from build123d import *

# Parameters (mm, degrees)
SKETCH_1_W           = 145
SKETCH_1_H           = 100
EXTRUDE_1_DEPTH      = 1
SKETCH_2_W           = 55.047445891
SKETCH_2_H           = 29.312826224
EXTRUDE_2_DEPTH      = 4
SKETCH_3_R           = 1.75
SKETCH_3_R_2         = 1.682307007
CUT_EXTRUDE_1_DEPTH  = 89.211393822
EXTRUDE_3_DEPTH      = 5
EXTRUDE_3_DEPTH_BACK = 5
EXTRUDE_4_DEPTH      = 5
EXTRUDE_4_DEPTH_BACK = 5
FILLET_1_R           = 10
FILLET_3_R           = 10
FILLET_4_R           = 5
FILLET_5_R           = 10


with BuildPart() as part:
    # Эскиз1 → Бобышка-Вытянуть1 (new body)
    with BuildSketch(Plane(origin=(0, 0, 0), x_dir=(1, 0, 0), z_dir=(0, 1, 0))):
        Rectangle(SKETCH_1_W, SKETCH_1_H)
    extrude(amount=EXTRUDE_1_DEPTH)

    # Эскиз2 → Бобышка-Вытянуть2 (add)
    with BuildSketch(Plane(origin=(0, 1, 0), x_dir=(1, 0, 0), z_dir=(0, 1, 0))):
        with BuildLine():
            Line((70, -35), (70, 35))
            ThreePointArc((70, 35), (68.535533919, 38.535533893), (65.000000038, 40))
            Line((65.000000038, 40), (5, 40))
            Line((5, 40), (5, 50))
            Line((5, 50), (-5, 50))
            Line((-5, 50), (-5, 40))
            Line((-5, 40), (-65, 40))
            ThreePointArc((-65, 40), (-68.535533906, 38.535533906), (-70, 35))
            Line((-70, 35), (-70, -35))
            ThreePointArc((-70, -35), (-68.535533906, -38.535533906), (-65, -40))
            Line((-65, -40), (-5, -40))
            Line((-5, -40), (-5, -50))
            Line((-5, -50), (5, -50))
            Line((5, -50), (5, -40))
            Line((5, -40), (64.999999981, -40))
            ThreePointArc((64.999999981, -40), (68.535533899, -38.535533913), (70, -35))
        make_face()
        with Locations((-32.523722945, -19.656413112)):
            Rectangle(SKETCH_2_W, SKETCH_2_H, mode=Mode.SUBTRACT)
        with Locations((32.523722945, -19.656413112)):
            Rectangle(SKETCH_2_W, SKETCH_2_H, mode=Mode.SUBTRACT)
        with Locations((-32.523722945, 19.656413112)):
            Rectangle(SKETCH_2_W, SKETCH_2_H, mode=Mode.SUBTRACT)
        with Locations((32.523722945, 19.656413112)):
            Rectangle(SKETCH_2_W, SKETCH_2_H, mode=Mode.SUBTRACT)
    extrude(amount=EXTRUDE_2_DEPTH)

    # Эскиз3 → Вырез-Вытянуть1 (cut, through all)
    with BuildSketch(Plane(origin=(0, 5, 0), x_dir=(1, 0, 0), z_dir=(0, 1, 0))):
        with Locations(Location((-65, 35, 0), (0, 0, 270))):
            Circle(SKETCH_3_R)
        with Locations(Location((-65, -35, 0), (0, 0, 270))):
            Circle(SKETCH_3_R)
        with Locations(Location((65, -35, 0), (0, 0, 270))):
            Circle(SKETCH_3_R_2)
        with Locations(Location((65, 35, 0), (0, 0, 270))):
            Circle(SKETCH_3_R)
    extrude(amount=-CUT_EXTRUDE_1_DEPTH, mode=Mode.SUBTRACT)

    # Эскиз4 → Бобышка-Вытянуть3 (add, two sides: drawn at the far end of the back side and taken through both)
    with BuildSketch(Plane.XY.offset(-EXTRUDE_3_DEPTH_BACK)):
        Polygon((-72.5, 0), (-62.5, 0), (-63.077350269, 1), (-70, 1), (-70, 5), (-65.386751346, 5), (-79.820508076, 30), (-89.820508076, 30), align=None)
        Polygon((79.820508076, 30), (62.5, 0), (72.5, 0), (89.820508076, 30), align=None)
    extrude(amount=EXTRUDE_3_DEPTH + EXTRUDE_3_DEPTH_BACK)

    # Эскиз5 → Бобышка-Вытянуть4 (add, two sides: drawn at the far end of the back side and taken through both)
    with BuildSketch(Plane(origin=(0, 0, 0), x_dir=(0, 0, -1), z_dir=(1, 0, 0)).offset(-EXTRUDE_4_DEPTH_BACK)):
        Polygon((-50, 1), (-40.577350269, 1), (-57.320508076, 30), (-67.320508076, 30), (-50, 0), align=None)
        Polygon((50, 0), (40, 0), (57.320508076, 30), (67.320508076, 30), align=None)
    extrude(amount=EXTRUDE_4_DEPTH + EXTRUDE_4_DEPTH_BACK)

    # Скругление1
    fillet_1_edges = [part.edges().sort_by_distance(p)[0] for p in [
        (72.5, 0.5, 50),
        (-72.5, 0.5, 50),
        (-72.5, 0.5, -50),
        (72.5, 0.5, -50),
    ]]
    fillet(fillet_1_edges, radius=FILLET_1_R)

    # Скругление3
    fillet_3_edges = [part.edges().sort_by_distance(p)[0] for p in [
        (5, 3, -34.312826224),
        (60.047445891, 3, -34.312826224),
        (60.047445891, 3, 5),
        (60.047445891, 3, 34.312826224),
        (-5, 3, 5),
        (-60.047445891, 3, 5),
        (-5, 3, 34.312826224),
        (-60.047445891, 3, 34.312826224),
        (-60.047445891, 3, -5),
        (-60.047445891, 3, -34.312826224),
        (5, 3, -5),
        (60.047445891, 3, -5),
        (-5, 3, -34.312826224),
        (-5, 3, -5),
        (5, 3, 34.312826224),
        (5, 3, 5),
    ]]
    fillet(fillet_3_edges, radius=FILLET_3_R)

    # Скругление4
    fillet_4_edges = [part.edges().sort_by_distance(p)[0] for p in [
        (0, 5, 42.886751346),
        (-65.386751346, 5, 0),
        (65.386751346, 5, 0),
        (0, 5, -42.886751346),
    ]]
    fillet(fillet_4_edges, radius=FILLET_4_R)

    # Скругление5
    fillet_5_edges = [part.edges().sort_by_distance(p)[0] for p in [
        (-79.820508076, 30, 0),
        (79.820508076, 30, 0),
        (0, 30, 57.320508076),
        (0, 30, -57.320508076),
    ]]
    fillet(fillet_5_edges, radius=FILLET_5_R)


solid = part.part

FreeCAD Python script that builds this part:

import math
import FreeCAD as App
import Part
import Sketcher
from FreeCAD import Vector
Q = App.Units.Quantity


def edges_at(feature, points):
    """Names of the edges that pass closest to the given points."""
    edges = feature.Shape.Edges
    near = lambda p: min(range(len(edges)), key=lambda i: edges[i].distToShape(Part.Vertex(*p))[0])
    return sorted({f"Edge{near(p) + 1}" for p in points})

doc = App.newDocument("Part")
body = doc.addObject("PartDesign::Body", "Body")

sketch1 = doc.addObject("Sketcher::SketchObject", "Sketch")
body.addObject(sketch1)
sketch1.AttachmentSupport = (doc.XZ_Plane, [""])
sketch1.MapMode = "FlatFace"
sketch1.addGeometry(Part.LineSegment(Vector(-72.5, -50, 0), Vector(-72.5, 50, 0)), False)
sketch1.addGeometry(Part.LineSegment(Vector(-72.5, 50, 0), Vector(72.5, 50, 0)), False)
sketch1.addGeometry(Part.LineSegment(Vector(72.5, 50, 0), Vector(72.5, -50, 0)), False)
sketch1.addGeometry(Part.LineSegment(Vector(72.5, -50, 0), Vector(-72.5, -50, 0)), False)
sketch1.addConstraint(Sketcher.Constraint("Coincident", 0, 2, 1, 1))
sketch1.addConstraint(Sketcher.Constraint("Coincident", 1, 2, 2, 1))
sketch1.addConstraint(Sketcher.Constraint("Coincident", 2, 2, 3, 1))
sketch1.addConstraint(Sketcher.Constraint("Coincident", 3, 2, 0, 1))
sketch1.addConstraint(Sketcher.Constraint("Vertical", 0))
sketch1.addConstraint(Sketcher.Constraint("Horizontal", 1))
sketch1.addConstraint(Sketcher.Constraint("Vertical", 2))
sketch1.addConstraint(Sketcher.Constraint("Horizontal", 3))
sketch1.addConstraint(Sketcher.Constraint("Symmetric", 0, 2, 2, 2, -1, 1))
sketch1.addConstraint(Sketcher.Constraint("DistanceX", 1, 1, 1, 2, Q("145 mm")))
sketch1.addConstraint(Sketcher.Constraint("DistanceY", 0, 1, 0, 2, Q("100 mm")))
pad1 = doc.addObject("PartDesign::Pad", "Pad")
body.addObject(pad1)
pad1.Profile = sketch1
pad1.Length = 1
pad1.Reversed = True

sketch2 = doc.addObject("Sketcher::SketchObject", "Sketch001")
body.addObject(sketch2)
sketch2.AttachmentSupport = (doc.XZ_Plane, [""])
sketch2.MapMode = "FlatFace"
sketch2.AttachmentOffset = App.Placement(Vector(0, 0, -1), App.Rotation())
sketch2.addGeometry(Part.LineSegment(Vector(70, 35, 0), Vector(70, -35, 0)), False)
sketch2.addGeometry(Part.ArcOfCircle(Part.Circle(Vector(65, -35, 0), Vector(0, 0, 1), 5), math.radians(-90), math.radians(0)), False)
sketch2.addGeometry(Part.LineSegment(Vector(65, -40, 0), Vector(5, -40, 0)), False)
sketch2.addGeometry(Part.LineSegment(Vector(5, -40, 0), Vector(5, -50, 0)), False)
sketch2.addGeometry(Part.LineSegment(Vector(5, -50, 0), Vector(-5, -50, 0)), False)
sketch2.addGeometry(Part.LineSegment(Vector(-5, -50, 0), Vector(-5, -40, 0)), False)
sketch2.addGeometry(Part.LineSegment(Vector(-5, -40, 0), Vector(-65, -40, 0)), False)
sketch2.addGeometry(Part.ArcOfCircle(Part.Circle(Vector(-65, -35, 0), Vector(0, 0, 1), 5), math.radians(180), math.radians(270)), False)
sketch2.addGeometry(Part.LineSegment(Vector(-70, -35, 0), Vector(-70, 35, 0)), False)
sketch2.addGeometry(Part.ArcOfCircle(Part.Circle(Vector(-65, 35, 0), Vector(0, 0, 1), 5), math.radians(90), math.radians(180)), False)
sketch2.addGeometry(Part.LineSegment(Vector(-65, 40, 0), Vector(-5, 40, 0)), False)
sketch2.addGeometry(Part.LineSegment(Vector(-5, 40, 0), Vector(-5, 50, 0)), False)
sketch2.addGeometry(Part.LineSegment(Vector(-5, 50, 0), Vector(5, 50, 0)), False)
sketch2.addGeometry(Part.LineSegment(Vector(5, 50, 0), Vector(5, 40, 0)), False)
sketch2.addGeometry(Part.LineSegment(Vector(5, 40, 0), Vector(65, 40, 0)), False)
sketch2.addGeometry(Part.ArcOfCircle(Part.Circle(Vector(65, 35, 0), Vector(0, 0, 1), 5), math.radians(0), math.radians(90)), False)
sketch2.addGeometry(Part.LineSegment(Vector(-5, 34.312826, 0), Vector(-60.047446, 34.312826, 0)), False)
sketch2.addGeometry(Part.LineSegment(Vector(-60.047446, 34.312826, 0), Vector(-60.047446, 5, 0)), False)
sketch2.addGeometry(Part.LineSegment(Vector(-60.047446, 5, 0), Vector(-5, 5, 0)), False)
sketch2.addGeometry(Part.LineSegment(Vector(-5, 5, 0), Vector(-5, 34.312826, 0)), False)
sketch2.addGeometry(Part.LineSegment(Vector(60.047446, 34.312826, 0), Vector(5, 34.312826, 0)), False)
sketch2.addGeometry(Part.LineSegment(Vector(5, 34.312826, 0), Vector(5, 5, 0)), False)
sketch2.addGeometry(Part.LineSegment(Vector(5, 5, 0), Vector(60.047446, 5, 0)), False)
sketch2.addGeometry(Part.LineSegment(Vector(60.047446, 5, 0), Vector(60.047446, 34.312826, 0)), False)
sketch2.addGeometry(Part.LineSegment(Vector(-5, -5, 0), Vector(-60.047446, -5, 0)), False)
sketch2.addGeometry(Part.LineSegment(Vector(-60.047446, -5, 0), Vector(-60.047446, -34.312826, 0)), False)
sketch2.addGeometry(Part.LineSegment(Vector(-60.047446, -34.312826, 0), Vector(-5, -34.312826, 0)), False)
sketch2.addGeometry(Part.LineSegment(Vector(-5, -34.312826, 0), Vector(-5, -5, 0)), False)
sketch2.addGeometry(Part.LineSegment(Vector(60.047446, -5, 0), Vector(5, -5, 0)), False)
sketch2.addGeometry(Part.LineSegment(Vector(5, -5, 0), Vector(5, -34.312826, 0)), False)
sketch2.addGeometry(Part.LineSegment(Vector(5, -34.312826, 0), Vector(60.047446, -34.312826, 0)), False)
sketch2.addGeometry(Part.LineSegment(Vector(60.047446, -34.312826, 0), Vector(60.047446, -5, 0)), False)
sketch2.addConstraint(Sketcher.Constraint("Tangent", 0, 2, 1, 2))
sketch2.addConstraint(Sketcher.Constraint("Tangent", 1, 1, 2, 1))
sketch2.addConstraint(Sketcher.Constraint("Coincident", 2, 2, 3, 1))
sketch2.addConstraint(Sketcher.Constraint("Coincident", 3, 2, 4, 1))
sketch2.addConstraint(Sketcher.Constraint("Coincident", 4, 2, 5, 1))
sketch2.addConstraint(Sketcher.Constraint("Coincident", 5, 2, 6, 1))
sketch2.addConstraint(Sketcher.Constraint("Tangent", 6, 2, 7, 2))
sketch2.addConstraint(Sketcher.Constraint("Tangent", 7, 1, 8, 1))
sketch2.addConstraint(Sketcher.Constraint("Tangent", 8, 2, 9, 2))
sketch2.addConstraint(Sketcher.Constraint("Tangent", 9, 1, 10, 1))
sketch2.addConstraint(Sketcher.Constraint("Coincident", 10, 2, 11, 1))
sketch2.addConstraint(Sketcher.Constraint("Coincident", 11, 2, 12, 1))
sketch2.addConstraint(Sketcher.Constraint("Coincident", 12, 2, 13, 1))
sketch2.addConstraint(Sketcher.Constraint("Coincident", 13, 2, 14, 1))
sketch2.addConstraint(Sketcher.Constraint("Tangent", 14, 2, 15, 2))
sketch2.addConstraint(Sketcher.Constraint("Tangent", 15, 1, 0, 1))
sketch2.addConstraint(Sketcher.Constraint("Coincident", 16, 2, 17, 1))
sketch2.addConstraint(Sketcher.Constraint("Coincident", 17, 2, 18, 1))
sketch2.addConstraint(Sketcher.Constraint("Coincident", 18, 2, 19, 1))
sketch2.addConstraint(Sketcher.Constraint("Coincident", 19, 2, 16, 1))
sketch2.addConstraint(Sketcher.Constraint("Coincident", 20, 2, 21, 1))
sketch2.addConstraint(Sketcher.Constraint("Coincident", 21, 2, 22, 1))
sketch2.addConstraint(Sketcher.Constraint("Coincident", 22, 2, 23, 1))
sketch2.addConstraint(Sketcher.Constraint("Coincident", 23, 2, 20, 1))
sketch2.addConstraint(Sketcher.Constraint("Coincident", 24, 2, 25, 1))
sketch2.addConstraint(Sketcher.Constraint("Coincident", 25, 2, 26, 1))
sketch2.addConstraint(Sketcher.Constraint("Coincident", 26, 2, 27, 1))
sketch2.addConstraint(Sketcher.Constraint("Coincident", 27, 2, 24, 1))
sketch2.addConstraint(Sketcher.Constraint("Coincident", 28, 2, 29, 1))
sketch2.addConstraint(Sketcher.Constraint("Coincident", 29, 2, 30, 1))
sketch2.addConstraint(Sketcher.Constraint("Coincident", 30, 2, 31, 1))
sketch2.addConstraint(Sketcher.Constraint("Coincident", 31, 2, 28, 1))
sketch2.addConstraint(Sketcher.Constraint("Vertical", 0))
sketch2.addConstraint(Sketcher.Constraint("Horizontal", 2))
sketch2.addConstraint(Sketcher.Constraint("Vertical", 3))
sketch2.addConstraint(Sketcher.Constraint("Horizontal", 4))
sketch2.addConstraint(Sketcher.Constraint("Vertical", 5))
sketch2.addConstraint(Sketcher.Constraint("Horizontal", 6))
sketch2.addConstraint(Sketcher.Constraint("Vertical", 8))
sketch2.addConstraint(Sketcher.Constraint("Horizontal", 10))
sketch2.addConstraint(Sketcher.Constraint("Vertical", 11))
sketch2.addConstraint(Sketcher.Constraint("Horizontal", 12))
sketch2.addConstraint(Sketcher.Constraint("Vertical", 13))
sketch2.addConstraint(Sketcher.Constraint("Horizontal", 14))
sketch2.addConstraint(Sketcher.Constraint("Horizontal", 16))
sketch2.addConstraint(Sketcher.Constraint("Vertical", 17))
sketch2.addConstraint(Sketcher.Constraint("Horizontal", 18))
sketch2.addConstraint(Sketcher.Constraint("Vertical", 19))
sketch2.addConstraint(Sketcher.Constraint("Horizontal", 20))
sketch2.addConstraint(Sketcher.Constraint("Vertical", 21))
sketch2.addConstraint(Sketcher.Constraint("Horizontal", 22))
sketch2.addConstraint(Sketcher.Constraint("Vertical", 23))
sketch2.addConstraint(Sketcher.Constraint("Horizontal", 24))
sketch2.addConstraint(Sketcher.Constraint("Vertical", 25))
sketch2.addConstraint(Sketcher.Constraint("Horizontal", 26))
sketch2.addConstraint(Sketcher.Constraint("Vertical", 27))
sketch2.addConstraint(Sketcher.Constraint("Horizontal", 28))
sketch2.addConstraint(Sketcher.Constraint("Vertical", 29))
sketch2.addConstraint(Sketcher.Constraint("Horizontal", 30))
sketch2.addConstraint(Sketcher.Constraint("Vertical", 31))
sketch2.addConstraint(Sketcher.Constraint("Equal", 1, 7))
sketch2.addConstraint(Sketcher.Constraint("Equal", 7, 9))
sketch2.addConstraint(Sketcher.Constraint("Equal", 9, 15))
sketch2.addConstraint(Sketcher.Constraint("Symmetric", 1, 3, 9, 3, -1, 1))
sketch2.addConstraint(Sketcher.Constraint("Symmetric", 3, 2, 11, 2, -1, 1))
sketch2.addConstraint(Sketcher.Constraint("Symmetric", 5, 2, 13, 2, -1, 1))
sketch2.addConstraint(Sketcher.Constraint("Symmetric", 22, 2, 24, 2, -1, 1))
sketch2.addConstraint(Sketcher.Constraint("Symmetric", 20, 2, 26, 2, -1, 1))
sketch2.addConstraint(Sketcher.Constraint("Symmetric", 18, 2, 28, 2, -1, 1))
sketch2.addConstraint(Sketcher.Constraint("Symmetric", 16, 2, 30, 2, -1, 1))
sketch2.addConstraint(Sketcher.Constraint("Symmetric", 2, 2, 5, 2, -2))
sketch2.addConstraint(Sketcher.Constraint("Symmetric", 19, 2, 20, 2, -2))
sketch2.addConstraint(Sketcher.Constraint("Symmetric", 17, 2, 22, 2, -2))
sketch2.addConstraint(Sketcher.Constraint("Vertical", 11, 2, 18, 2))
sketch2.addConstraint(Sketcher.Constraint("Equal", 12, 3))
sketch2.addConstraint(Sketcher.Constraint("Radius", 1, Q("5 mm")))
sketch2.addConstraint(Sketcher.Constraint("DistanceX", 2, 2, 2, 1, Q("60 mm")))
sketch2.addConstraint(Sketcher.Constraint("DistanceX", 4, 2, 4, 1, Q("10 mm")))
sketch2.addConstraint(Sketcher.Constraint("DistanceY", 0, 2, 0, 1, Q("70 mm")))
sketch2.addConstraint(Sketcher.Constraint("DistanceY", -1, 1, 17, 2, Q("5 mm")))
sketch2.addConstraint(Sketcher.Constraint("DistanceX", 16, 2, 16, 1, Q("55.047446 mm")))
sketch2.addConstraint(Sketcher.Constraint("DistanceY", 17, 2, 17, 1, Q("29.312826 mm")))
pad2 = doc.addObject("PartDesign::Pad", "Pad001")
body.addObject(pad2)
pad2.Profile = sketch2
pad2.Length = 4
pad2.Reversed = True

sketch3 = doc.addObject("Sketcher::SketchObject", "Sketch002")
body.addObject(sketch3)
sketch3.AttachmentSupport = (doc.XZ_Plane, [""])
sketch3.MapMode = "FlatFace"
sketch3.AttachmentOffset = App.Placement(Vector(0, 0, -5), App.Rotation())
sketch3.addGeometry(Part.Circle(Vector(-65, -35, 0), Vector(0, 0, 1), 1.75), False)
sketch3.addGeometry(Part.Circle(Vector(-65, 35, 0), Vector(0, 0, 1), 1.75), False)
sketch3.addGeometry(Part.Circle(Vector(65, 35, 0), Vector(0, 0, 1), 1.682307), False)
sketch3.addGeometry(Part.Circle(Vector(65, -35, 0), Vector(0, 0, 1), 1.75), False)
sketch3.addConstraint(Sketcher.Constraint("Equal", 0, 1))
sketch3.addConstraint(Sketcher.Constraint("Equal", 1, 3))
sketch3.addConstraint(Sketcher.Constraint("Symmetric", 0, 3, 2, 3, -1, 1))
sketch3.addConstraint(Sketcher.Constraint("Symmetric", 1, 3, 3, 3, -1, 1))
sketch3.addConstraint(Sketcher.Constraint("Symmetric", 1, 3, 2, 3, -2))
sketch3.addConstraint(Sketcher.Constraint("Diameter", 0, Q("3.5 mm")))
sketch3.addConstraint(Sketcher.Constraint("DistanceX", 0, 3, -1, 1, Q("65 mm")))
sketch3.addConstraint(Sketcher.Constraint("DistanceY", 0, 3, -1, 1, Q("35 mm")))
sketch3.addConstraint(Sketcher.Constraint("Diameter", 2, Q("3.364614 mm")))
pocket1 = doc.addObject("PartDesign::Pocket", "Pocket")
body.addObject(pocket1)
pocket1.Profile = sketch3
pocket1.Type = "ThroughAll"
pocket1.Reversed = True

sketch4 = doc.addObject("Sketcher::SketchObject", "Sketch003")
body.addObject(sketch4)
sketch4.AttachmentSupport = (doc.XY_Plane, [""])
sketch4.MapMode = "FlatFace"
sketch4.addGeometry(Part.LineSegment(Vector(-72.5, 0, 0), Vector(-62.5, 0, 0)), False)
sketch4.addGeometry(Part.LineSegment(Vector(-62.5, 0, 0), Vector(-63.07735, 1, 0)), False)
sketch4.addGeometry(Part.LineSegment(Vector(-63.07735, 1, 0), Vector(-70, 1, 0)), False)
sketch4.addGeometry(Part.LineSegment(Vector(-70, 1, 0), Vector(-70, 5, 0)), False)
sketch4.addGeometry(Part.LineSegment(Vector(-70, 5, 0), Vector(-65.386751, 5, 0)), False)
sketch4.addGeometry(Part.LineSegment(Vector(-65.386751, 5, 0), Vector(-79.820508, 30, 0)), False)
sketch4.addGeometry(Part.LineSegment(Vector(-79.820508, 30, 0), Vector(-89.820508, 30, 0)), False)
sketch4.addGeometry(Part.LineSegment(Vector(-89.820508, 30, 0), Vector(-72.5, 0, 0)), False)
sketch4.addGeometry(Part.LineSegment(Vector(79.820508, 30, 0), Vector(62.5, 0, 0)), False)
sketch4.addGeometry(Part.LineSegment(Vector(62.5, 0, 0), Vector(72.5, 0, 0)), False)
sketch4.addGeometry(Part.LineSegment(Vector(72.5, 0, 0), Vector(89.820508, 30, 0)), False)
sketch4.addGeometry(Part.LineSegment(Vector(89.820508, 30, 0), Vector(79.820508, 30, 0)), False)
sketch4.addConstraint(Sketcher.Constraint("Coincident", 0, 2, 1, 1))
sketch4.addConstraint(Sketcher.Constraint("Coincident", 1, 2, 2, 1))
sketch4.addConstraint(Sketcher.Constraint("Coincident", 2, 2, 3, 1))
sketch4.addConstraint(Sketcher.Constraint("Coincident", 3, 2, 4, 1))
sketch4.addConstraint(Sketcher.Constraint("Coincident", 4, 2, 5, 1))
sketch4.addConstraint(Sketcher.Constraint("Coincident", 5, 2, 6, 1))
sketch4.addConstraint(Sketcher.Constraint("Coincident", 6, 2, 7, 1))
sketch4.addConstraint(Sketcher.Constraint("Coincident", 7, 2, 0, 1))
sketch4.addConstraint(Sketcher.Constraint("Coincident", 8, 2, 9, 1))
sketch4.addConstraint(Sketcher.Constraint("Coincident", 9, 2, 10, 1))
sketch4.addConstraint(Sketcher.Constraint("Coincident", 10, 2, 11, 1))
sketch4.addConstraint(Sketcher.Constraint("Coincident", 11, 2, 8, 1))
sketch4.addConstraint(Sketcher.Constraint("Horizontal", 0))
sketch4.addConstraint(Sketcher.Constraint("Horizontal", 2))
sketch4.addConstraint(Sketcher.Constraint("Vertical", 3))
sketch4.addConstraint(Sketcher.Constraint("Horizontal", 4))
sketch4.addConstraint(Sketcher.Constraint("Horizontal", 6))
sketch4.addConstraint(Sketcher.Constraint("Horizontal", 9))
sketch4.addConstraint(Sketcher.Constraint("Horizontal", 11))
sketch4.addConstraint(Sketcher.Constraint("Symmetric", 0, 2, 8, 2, -1, 1))
sketch4.addConstraint(Sketcher.Constraint("Symmetric", 7, 2, 9, 2, -2))
sketch4.addConstraint(Sketcher.Constraint("Symmetric", 6, 2, 10, 2, -2))
sketch4.addConstraint(Sketcher.Constraint("Parallel", 1, 5))
sketch4.addConstraint(Sketcher.Constraint("Parallel", 5, 7))
sketch4.addConstraint(Sketcher.Constraint("Parallel", 8, 10))
sketch4.addConstraint(Sketcher.Constraint("Equal", 0, 6))
sketch4.addConstraint(Sketcher.Constraint("DistanceX", 0, 1, 0, 2, Q("10 mm")))
sketch4.addConstraint(Sketcher.Constraint("DistanceY", 3, 1, 3, 2, Q("4 mm")))
sketch4.addConstraint(Sketcher.Constraint("Angle", 1, Q("120 deg")))
sketch4.addConstraint(Sketcher.Constraint("DistanceY", -1, 1, 1, 2, Q("1 mm")))
sketch4.addConstraint(Sketcher.Constraint("DistanceX", 2, 2, -1, 1, Q("70 mm")))
sketch4.addConstraint(Sketcher.Constraint("DistanceY", -1, 1, 5, 2, Q("30 mm")))
sketch4.addConstraint(Sketcher.Constraint("DistanceX", 0, 2, 8, 2, Q("125 mm")))
pad3 = doc.addObject("PartDesign::Pad", "Pad002")
body.addObject(pad3)
pad3.Profile = sketch4
pad3.Type = "TwoLengths"
pad3.Length = 5
pad3.Length2 = 5

sketch5 = doc.addObject("Sketcher::SketchObject", "Sketch004")
body.addObject(sketch5)
sketch5.AttachmentSupport = (doc.YZ_Plane, [""])
sketch5.MapMode = "FlatFace"
sketch5.addGeometry(Part.LineSegment(Vector(1, 50, 0), Vector(1, 40.57735, 0)), False)
sketch5.addGeometry(Part.LineSegment(Vector(1, 40.57735, 0), Vector(30, 57.320508, 0)), False)
sketch5.addGeometry(Part.LineSegment(Vector(30, 57.320508, 0), Vector(30, 67.320508, 0)), False)
sketch5.addGeometry(Part.LineSegment(Vector(30, 67.320508, 0), Vector(0, 50, 0)), False)
sketch5.addGeometry(Part.LineSegment(Vector(0, 50, 0), Vector(1, 50, 0)), False)
sketch5.addGeometry(Part.LineSegment(Vector(0, -40, 0), Vector(0, -50, 0)), False)
sketch5.addGeometry(Part.LineSegment(Vector(0, -50, 0), Vector(30, -67.320508, 0)), False)
sketch5.addGeometry(Part.LineSegment(Vector(30, -67.320508, 0), Vector(30, -57.320508, 0)), False)
sketch5.addGeometry(Part.LineSegment(Vector(30, -57.320508, 0), Vector(0, -40, 0)), False)
sketch5.addConstraint(Sketcher.Constraint("Coincident", 0, 2, 1, 1))
sketch5.addConstraint(Sketcher.Constraint("Coincident", 1, 2, 2, 1))
sketch5.addConstraint(Sketcher.Constraint("Coincident", 2, 2, 3, 1))
sketch5.addConstraint(Sketcher.Constraint("Coincident", 3, 2, 4, 1))
sketch5.addConstraint(Sketcher.Constraint("Coincident", 4, 2, 0, 1))
sketch5.addConstraint(Sketcher.Constraint("Coincident", 5, 2, 6, 1))
sketch5.addConstraint(Sketcher.Constraint("Coincident", 6, 2, 7, 1))
sketch5.addConstraint(Sketcher.Constraint("Coincident", 7, 2, 8, 1))
sketch5.addConstraint(Sketcher.Constraint("Coincident", 8, 2, 5, 1))
sketch5.addConstraint(Sketcher.Constraint("Vertical", 0))
sketch5.addConstraint(Sketcher.Constraint("Vertical", 2))
sketch5.addConstraint(Sketcher.Constraint("Horizontal", 4))
sketch5.addConstraint(Sketcher.Constraint("Vertical", 5))
sketch5.addConstraint(Sketcher.Constraint("Vertical", 7))
sketch5.addConstraint(Sketcher.Constraint("Symmetric", 3, 2, 5, 2, -1, 1))
sketch5.addConstraint(Sketcher.Constraint("Symmetric", 2, 2, 6, 2, -1))
sketch5.addConstraint(Sketcher.Constraint("PointOnObject", 3, 2, -2))
sketch5.addConstraint(Sketcher.Constraint("Parallel", 1, 3))
sketch5.addConstraint(Sketcher.Constraint("Parallel", 6, 8))
sketch5.addConstraint(Sketcher.Constraint("Equal", 2, 5))
sketch5.addConstraint(Sketcher.Constraint("DistanceX", 4, 1, 4, 2, Q("1 mm")))
sketch5.addConstraint(Sketcher.Constraint("DistanceY", 2, 1, 2, 2, Q("10 mm")))
sketch5.addConstraint(Sketcher.Constraint("Angle", 1, Q("30 deg")))
sketch5.addConstraint(Sketcher.Constraint("DistanceX", -1, 1, 1, 2, Q("30 mm")))
sketch5.addConstraint(Sketcher.Constraint("DistanceY", -1, 1, 3, 2, Q("50 mm")))
pad4 = doc.addObject("PartDesign::Pad", "Pad003")
body.addObject(pad4)
pad4.Profile = sketch5
pad4.Type = "TwoLengths"
pad4.Length = 5
pad4.Length2 = 5
doc.recompute()

fillet = doc.addObject("PartDesign::Fillet", "Fillet")
body.addObject(fillet)
fillet.Base = (pad4, edges_at(pad4, [
    (72.5, 0.5, 50),
    (-72.5, 0.5, 50),
    (-72.5, 0.5, -50),
    (72.5, 0.5, -50),
]))
fillet.Radius = 10
doc.recompute()

fillet2 = doc.addObject("PartDesign::Fillet", "Fillet001")
body.addObject(fillet2)
fillet2.Base = (fillet, edges_at(fillet, [
    (5, 3, -34.313),
    (60.047, 3, -34.313),
    (60.047, 3, 5),
    (60.047, 3, 34.313),
    (-5, 3, 5),
    (-60.047, 3, 5),
    (-5, 3, 34.313),
    (-60.047, 3, 34.313),
    (-60.047, 3, -5),
    (-60.047, 3, -34.313),
    (5, 3, -5),
    (60.047, 3, -5),
    (-5, 3, -34.313),
    (-5, 3, -5),
    (5, 3, 34.313),
    (5, 3, 5),
]))
fillet2.Radius = 10
doc.recompute()

fillet3 = doc.addObject("PartDesign::Fillet", "Fillet002")
body.addObject(fillet3)
fillet3.Base = (fillet2, edges_at(fillet2, [
    (0, 5, 42.887),
    (-65.387, 5, 0),
    (65.387, 5, 0),
    (0, 5, -42.887),
]))
fillet3.Radius = 5
doc.recompute()

fillet4 = doc.addObject("PartDesign::Fillet", "Fillet003")
body.addObject(fillet4)
fillet4.Base = (fillet3, edges_at(fillet3, [
    (-79.821, 30, 0),
    (79.821, 30, 0),
    (0, 30, 57.321),
    (0, 30, -57.321),
]))
fillet4.Radius = 10

doc.recompute()
